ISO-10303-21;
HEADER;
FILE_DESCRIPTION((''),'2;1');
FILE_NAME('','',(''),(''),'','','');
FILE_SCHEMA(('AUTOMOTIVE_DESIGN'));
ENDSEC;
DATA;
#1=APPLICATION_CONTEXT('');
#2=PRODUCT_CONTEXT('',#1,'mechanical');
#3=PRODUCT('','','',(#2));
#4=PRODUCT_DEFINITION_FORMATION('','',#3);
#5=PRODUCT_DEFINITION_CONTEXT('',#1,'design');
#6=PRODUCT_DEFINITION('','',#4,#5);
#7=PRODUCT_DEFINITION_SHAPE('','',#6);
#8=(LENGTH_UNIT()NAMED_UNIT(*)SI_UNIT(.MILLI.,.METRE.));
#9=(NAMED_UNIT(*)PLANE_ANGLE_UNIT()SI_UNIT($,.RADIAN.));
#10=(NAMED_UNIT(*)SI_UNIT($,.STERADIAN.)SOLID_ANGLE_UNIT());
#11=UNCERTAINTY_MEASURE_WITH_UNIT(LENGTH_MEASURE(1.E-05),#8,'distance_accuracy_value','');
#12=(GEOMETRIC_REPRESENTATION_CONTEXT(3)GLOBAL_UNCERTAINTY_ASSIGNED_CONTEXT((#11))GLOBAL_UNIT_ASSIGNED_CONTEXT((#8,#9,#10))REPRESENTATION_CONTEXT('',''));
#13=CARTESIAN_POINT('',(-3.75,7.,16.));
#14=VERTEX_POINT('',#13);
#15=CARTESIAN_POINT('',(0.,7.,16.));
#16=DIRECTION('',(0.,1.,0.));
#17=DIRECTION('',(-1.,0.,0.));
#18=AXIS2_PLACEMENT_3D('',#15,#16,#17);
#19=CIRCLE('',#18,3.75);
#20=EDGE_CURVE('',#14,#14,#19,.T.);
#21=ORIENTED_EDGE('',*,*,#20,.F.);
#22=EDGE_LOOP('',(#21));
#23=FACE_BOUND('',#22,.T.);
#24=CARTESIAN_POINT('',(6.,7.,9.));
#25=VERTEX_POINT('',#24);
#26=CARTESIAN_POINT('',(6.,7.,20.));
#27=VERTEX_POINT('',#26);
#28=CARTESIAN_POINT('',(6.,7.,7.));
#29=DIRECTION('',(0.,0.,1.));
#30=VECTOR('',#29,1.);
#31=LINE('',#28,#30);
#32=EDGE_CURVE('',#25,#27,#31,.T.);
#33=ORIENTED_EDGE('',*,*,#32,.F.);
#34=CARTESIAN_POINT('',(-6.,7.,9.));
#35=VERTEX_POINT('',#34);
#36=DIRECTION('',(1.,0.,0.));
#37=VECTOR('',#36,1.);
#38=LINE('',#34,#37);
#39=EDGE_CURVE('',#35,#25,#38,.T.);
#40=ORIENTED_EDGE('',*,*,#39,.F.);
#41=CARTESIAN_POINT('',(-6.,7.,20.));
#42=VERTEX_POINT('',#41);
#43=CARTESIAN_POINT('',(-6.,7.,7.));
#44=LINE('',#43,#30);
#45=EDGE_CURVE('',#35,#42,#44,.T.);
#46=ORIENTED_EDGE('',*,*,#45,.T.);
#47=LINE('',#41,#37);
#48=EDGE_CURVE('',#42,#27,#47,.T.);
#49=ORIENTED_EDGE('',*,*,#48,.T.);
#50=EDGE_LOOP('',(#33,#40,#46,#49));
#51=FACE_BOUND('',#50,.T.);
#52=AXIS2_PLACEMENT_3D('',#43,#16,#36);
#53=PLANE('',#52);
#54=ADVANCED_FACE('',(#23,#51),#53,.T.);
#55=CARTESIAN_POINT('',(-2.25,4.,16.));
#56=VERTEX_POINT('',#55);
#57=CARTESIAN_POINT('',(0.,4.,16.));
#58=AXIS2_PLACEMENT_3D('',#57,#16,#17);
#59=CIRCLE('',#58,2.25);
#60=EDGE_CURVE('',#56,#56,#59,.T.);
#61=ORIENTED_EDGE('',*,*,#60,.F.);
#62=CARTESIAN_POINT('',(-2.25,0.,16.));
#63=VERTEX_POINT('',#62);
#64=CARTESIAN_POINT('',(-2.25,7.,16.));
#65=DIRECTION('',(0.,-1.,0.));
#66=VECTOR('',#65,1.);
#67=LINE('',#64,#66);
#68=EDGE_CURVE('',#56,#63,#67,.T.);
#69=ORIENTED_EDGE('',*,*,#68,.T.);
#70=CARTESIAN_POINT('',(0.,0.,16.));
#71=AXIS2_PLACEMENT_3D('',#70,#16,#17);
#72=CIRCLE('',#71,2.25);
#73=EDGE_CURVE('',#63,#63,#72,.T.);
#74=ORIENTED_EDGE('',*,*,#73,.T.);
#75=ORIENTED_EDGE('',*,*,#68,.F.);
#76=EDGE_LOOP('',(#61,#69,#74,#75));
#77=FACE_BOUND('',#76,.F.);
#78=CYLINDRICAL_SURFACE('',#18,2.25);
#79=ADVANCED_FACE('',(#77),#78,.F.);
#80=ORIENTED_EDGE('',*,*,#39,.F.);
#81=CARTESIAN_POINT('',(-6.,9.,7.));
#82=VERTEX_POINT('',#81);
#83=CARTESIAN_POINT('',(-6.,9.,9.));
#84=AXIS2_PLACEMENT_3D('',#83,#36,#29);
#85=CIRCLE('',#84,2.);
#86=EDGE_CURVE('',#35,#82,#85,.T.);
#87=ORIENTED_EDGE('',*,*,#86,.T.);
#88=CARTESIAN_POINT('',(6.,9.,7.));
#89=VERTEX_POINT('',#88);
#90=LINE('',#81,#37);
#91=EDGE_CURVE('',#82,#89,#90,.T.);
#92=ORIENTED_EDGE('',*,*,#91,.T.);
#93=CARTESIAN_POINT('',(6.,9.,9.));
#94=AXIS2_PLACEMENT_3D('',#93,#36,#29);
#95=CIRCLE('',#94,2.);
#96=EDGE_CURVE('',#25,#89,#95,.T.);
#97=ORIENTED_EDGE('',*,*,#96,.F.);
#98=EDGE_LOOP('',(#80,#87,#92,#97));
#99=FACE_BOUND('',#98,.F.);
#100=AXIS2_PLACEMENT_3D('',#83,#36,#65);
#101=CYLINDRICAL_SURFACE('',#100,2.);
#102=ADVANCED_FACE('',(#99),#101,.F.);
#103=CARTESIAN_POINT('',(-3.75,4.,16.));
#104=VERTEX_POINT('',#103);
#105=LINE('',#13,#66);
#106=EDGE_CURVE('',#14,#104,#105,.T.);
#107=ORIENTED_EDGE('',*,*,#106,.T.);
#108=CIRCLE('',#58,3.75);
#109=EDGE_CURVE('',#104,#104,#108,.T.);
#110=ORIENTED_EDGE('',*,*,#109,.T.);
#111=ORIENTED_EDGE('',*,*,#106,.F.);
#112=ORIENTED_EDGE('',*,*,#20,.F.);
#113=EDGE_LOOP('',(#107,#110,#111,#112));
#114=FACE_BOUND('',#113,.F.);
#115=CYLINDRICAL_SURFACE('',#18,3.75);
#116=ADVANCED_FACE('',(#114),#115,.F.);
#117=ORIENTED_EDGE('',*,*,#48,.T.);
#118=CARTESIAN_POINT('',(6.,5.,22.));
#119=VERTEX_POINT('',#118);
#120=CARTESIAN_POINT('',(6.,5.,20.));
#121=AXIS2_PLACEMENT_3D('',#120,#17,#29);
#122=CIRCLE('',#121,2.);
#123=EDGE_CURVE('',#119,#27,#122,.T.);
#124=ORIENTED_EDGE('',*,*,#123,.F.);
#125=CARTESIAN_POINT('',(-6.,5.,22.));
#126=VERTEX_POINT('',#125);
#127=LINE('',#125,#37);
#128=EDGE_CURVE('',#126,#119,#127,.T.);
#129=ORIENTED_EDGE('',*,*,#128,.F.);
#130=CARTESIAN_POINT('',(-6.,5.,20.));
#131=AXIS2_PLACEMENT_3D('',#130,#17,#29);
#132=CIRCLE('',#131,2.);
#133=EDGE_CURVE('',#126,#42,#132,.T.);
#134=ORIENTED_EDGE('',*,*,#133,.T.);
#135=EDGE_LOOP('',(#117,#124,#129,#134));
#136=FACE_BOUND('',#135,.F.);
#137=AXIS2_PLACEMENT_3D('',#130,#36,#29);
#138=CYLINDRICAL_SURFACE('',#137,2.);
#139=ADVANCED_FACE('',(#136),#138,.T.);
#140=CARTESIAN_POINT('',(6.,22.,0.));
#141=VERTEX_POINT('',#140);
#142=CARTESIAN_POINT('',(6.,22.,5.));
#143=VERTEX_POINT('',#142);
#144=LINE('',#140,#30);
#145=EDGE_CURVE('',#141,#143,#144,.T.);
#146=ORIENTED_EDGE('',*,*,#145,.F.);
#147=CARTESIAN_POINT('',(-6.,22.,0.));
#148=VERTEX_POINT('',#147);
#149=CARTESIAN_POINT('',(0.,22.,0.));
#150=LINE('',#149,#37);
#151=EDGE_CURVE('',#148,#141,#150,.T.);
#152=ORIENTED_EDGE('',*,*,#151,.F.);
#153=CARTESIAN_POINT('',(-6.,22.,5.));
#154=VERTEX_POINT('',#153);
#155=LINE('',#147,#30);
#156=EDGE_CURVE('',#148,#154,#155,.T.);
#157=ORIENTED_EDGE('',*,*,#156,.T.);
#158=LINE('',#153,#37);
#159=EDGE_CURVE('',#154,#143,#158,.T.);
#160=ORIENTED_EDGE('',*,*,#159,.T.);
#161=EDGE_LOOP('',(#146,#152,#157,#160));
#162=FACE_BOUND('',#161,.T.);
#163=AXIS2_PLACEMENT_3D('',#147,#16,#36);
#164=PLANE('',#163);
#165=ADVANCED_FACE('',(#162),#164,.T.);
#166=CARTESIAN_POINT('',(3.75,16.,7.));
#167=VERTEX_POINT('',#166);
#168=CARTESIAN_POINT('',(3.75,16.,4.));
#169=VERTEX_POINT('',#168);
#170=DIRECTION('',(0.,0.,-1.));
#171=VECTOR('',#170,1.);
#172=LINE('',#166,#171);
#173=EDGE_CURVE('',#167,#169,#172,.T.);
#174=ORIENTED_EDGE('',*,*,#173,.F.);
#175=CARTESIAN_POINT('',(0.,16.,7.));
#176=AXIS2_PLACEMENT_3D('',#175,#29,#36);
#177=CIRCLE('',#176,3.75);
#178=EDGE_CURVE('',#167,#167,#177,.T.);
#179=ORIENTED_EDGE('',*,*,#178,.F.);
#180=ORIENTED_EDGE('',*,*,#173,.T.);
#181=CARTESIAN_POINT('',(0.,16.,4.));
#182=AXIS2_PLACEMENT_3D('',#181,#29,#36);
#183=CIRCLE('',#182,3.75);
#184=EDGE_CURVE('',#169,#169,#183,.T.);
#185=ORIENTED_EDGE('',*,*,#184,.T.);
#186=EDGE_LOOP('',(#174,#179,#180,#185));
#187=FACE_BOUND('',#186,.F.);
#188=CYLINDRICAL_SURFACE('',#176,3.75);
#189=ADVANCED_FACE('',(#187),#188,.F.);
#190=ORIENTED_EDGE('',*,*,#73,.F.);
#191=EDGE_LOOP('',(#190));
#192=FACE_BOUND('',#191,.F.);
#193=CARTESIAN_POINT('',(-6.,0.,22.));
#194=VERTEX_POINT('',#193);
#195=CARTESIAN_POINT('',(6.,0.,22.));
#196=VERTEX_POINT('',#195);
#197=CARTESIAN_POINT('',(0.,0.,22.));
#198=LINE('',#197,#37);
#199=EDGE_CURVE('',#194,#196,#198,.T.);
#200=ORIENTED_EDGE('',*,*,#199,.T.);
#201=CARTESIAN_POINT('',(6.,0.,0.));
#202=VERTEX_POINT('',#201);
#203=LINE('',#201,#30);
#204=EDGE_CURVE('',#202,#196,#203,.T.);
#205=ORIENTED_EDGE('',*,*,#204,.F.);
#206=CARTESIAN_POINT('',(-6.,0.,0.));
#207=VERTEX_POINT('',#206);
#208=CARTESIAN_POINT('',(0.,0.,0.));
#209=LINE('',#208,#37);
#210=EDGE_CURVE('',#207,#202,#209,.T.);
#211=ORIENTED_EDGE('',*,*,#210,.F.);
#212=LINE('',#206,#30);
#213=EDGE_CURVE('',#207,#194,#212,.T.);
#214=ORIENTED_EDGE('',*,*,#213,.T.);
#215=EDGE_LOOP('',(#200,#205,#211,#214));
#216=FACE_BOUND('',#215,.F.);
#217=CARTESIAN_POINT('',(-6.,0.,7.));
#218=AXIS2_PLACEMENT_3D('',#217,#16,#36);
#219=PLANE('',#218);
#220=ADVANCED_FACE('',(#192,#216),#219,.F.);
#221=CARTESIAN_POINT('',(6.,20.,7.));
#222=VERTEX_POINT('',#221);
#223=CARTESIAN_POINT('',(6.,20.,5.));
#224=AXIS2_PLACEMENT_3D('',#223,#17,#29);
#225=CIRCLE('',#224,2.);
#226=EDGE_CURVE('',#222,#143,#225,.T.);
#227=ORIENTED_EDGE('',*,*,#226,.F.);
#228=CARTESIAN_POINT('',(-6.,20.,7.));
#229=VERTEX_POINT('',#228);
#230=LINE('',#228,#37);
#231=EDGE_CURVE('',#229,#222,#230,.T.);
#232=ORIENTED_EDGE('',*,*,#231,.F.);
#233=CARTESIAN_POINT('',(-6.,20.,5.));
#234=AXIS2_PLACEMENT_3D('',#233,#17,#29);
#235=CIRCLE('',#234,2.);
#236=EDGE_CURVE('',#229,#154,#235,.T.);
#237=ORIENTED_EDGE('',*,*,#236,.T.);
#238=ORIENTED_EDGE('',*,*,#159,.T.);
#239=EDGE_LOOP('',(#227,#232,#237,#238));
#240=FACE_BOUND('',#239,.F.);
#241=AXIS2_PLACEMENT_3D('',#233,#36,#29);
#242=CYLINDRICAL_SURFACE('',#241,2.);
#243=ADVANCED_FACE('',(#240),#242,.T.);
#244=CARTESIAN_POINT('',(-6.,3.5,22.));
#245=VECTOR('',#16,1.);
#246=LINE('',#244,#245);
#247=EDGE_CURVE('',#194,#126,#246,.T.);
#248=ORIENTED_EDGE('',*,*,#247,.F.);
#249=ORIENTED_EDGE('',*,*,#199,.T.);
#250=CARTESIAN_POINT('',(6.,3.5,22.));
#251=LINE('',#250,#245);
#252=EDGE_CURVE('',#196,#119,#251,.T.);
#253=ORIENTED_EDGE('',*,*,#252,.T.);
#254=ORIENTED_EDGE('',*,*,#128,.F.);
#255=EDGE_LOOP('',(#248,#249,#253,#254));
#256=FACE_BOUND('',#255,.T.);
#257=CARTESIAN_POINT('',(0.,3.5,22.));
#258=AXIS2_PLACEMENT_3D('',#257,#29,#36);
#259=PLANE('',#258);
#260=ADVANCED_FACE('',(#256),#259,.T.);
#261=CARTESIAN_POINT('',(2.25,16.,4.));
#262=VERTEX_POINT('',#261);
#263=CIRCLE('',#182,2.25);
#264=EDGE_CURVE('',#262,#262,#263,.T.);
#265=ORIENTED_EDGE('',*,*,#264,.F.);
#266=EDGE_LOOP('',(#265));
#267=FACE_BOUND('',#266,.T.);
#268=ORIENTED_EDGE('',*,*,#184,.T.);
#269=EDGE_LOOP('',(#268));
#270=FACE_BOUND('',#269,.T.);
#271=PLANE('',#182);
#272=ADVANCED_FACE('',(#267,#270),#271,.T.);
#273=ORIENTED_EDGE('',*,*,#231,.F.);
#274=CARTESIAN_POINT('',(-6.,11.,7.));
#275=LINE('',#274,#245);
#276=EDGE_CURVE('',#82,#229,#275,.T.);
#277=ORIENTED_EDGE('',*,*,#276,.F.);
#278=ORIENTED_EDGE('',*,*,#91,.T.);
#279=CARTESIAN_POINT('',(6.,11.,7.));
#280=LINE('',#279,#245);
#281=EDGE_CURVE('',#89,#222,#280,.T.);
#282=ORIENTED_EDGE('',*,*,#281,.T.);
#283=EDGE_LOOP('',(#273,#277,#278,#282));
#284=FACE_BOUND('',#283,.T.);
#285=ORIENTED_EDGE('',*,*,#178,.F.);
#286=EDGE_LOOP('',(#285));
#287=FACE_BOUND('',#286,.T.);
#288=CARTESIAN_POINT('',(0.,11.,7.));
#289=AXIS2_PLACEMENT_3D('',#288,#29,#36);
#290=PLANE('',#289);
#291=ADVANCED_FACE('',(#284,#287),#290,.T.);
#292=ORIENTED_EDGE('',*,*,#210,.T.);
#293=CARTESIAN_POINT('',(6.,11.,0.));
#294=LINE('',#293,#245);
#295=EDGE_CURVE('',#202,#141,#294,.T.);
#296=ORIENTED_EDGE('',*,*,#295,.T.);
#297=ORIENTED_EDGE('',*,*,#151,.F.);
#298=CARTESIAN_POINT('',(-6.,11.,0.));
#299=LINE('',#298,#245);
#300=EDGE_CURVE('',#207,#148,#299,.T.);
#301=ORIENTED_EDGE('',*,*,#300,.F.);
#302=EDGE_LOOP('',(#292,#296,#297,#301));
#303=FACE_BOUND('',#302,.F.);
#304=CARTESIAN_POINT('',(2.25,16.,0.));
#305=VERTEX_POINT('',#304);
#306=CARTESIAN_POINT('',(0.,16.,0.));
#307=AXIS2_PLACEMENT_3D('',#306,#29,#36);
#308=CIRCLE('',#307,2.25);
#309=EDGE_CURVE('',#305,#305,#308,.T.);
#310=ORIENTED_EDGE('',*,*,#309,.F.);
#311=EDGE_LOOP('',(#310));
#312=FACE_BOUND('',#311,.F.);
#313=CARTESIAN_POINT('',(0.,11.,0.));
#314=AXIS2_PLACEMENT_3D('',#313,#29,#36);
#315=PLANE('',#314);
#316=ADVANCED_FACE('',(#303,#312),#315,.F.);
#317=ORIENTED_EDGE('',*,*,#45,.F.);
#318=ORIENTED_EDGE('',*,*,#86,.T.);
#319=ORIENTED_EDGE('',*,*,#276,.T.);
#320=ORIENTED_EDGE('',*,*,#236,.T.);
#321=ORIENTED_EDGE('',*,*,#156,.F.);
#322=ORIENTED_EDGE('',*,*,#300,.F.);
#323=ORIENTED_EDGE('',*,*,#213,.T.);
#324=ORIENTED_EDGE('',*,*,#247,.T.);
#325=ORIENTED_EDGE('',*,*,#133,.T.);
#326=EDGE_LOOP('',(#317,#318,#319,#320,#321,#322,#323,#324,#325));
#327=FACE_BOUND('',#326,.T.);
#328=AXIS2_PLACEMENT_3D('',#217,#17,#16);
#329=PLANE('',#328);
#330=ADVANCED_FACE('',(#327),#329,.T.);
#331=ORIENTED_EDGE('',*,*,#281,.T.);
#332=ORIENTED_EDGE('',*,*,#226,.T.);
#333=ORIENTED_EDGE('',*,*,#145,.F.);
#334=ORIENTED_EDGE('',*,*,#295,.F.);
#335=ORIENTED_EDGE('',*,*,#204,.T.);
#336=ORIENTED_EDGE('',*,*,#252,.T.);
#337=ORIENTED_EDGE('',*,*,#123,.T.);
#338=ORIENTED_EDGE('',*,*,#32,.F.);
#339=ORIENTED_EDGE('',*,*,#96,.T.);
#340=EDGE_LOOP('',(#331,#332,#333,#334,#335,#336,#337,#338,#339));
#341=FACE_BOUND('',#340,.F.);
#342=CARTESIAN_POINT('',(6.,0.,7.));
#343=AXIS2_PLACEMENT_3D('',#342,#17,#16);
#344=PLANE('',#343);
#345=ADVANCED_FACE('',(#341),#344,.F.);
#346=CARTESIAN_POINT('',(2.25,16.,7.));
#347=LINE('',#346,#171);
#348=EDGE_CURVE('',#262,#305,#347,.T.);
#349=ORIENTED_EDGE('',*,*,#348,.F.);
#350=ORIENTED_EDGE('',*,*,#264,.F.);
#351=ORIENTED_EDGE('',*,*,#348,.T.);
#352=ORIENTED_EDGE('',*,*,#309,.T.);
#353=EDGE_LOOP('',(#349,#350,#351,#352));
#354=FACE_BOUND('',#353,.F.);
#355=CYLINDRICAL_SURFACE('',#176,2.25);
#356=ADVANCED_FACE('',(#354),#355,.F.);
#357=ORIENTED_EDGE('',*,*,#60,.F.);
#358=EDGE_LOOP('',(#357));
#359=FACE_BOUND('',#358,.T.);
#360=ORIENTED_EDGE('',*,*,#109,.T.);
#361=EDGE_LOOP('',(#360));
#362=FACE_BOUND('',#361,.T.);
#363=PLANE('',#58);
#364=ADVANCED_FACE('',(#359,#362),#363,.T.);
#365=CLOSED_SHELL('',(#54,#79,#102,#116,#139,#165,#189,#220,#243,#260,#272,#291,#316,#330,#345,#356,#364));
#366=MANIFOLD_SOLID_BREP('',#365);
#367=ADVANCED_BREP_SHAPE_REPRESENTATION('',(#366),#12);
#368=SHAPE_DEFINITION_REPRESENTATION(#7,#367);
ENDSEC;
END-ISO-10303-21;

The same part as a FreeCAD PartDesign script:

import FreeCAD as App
import Part
import Sketcher

V = App.Vector


def edges_at(feature, points):
    """Names of the edges that pass closest to the given points."""
    edges = feature.Shape.Edges
    near = lambda p: min(range(len(edges)), key=lambda i: edges[i].distToShape(Part.Vertex(*p))[0])
    return sorted({f"Edge{near(p) + 1}" for p in points})

doc = App.newDocument("Part")
body = doc.addObject("PartDesign::Body", "Body")

sketch1 = body.newObject("Sketcher::SketchObject", "Sketch")
sketch1.AttachmentSupport = (doc.getObject("XY_Plane"), [""])
sketch1.MapMode = "FlatFace"
sketch1.addGeometry(Part.LineSegment(V(-6, 22, 0), V(-6, 0, 0)), False)
sketch1.addGeometry(Part.LineSegment(V(-6, 0, 0), V(6, 0, 0)), False)
sketch1.addGeometry(Part.LineSegment(V(6, 0, 0), V(6, 22, 0)), False)
sketch1.addGeometry(Part.LineSegment(V(6, 22, 0), V(-6, 22, 0)), False)
sketch1.addConstraint(Sketcher.Constraint("Coincident", 0, 2, 1, 1))
sketch1.addConstraint(Sketcher.Constraint("Coincident", 1, 2, 2, 1))
sketch1.addConstraint(Sketcher.Constraint("Coincident", 2, 2, 3, 1))
sketch1.addConstraint(Sketcher.Constraint("Coincident", 3, 2, 0, 1))
sketch1.addConstraint(Sketcher.Constraint("Vertical", 0))
sketch1.addConstraint(Sketcher.Constraint("Horizontal", 1))
sketch1.addConstraint(Sketcher.Constraint("Vertical", 2))
sketch1.addConstraint(Sketcher.Constraint("Horizontal", 3))
sketch1.addConstraint(Sketcher.Constraint("Symmetric", 0, 2, 1, 2, -1, 1))
sketch1.addConstraint(Sketcher.Constraint("DistanceX", 1, 1, 1, 2, 12.0))
sketch1.addConstraint(Sketcher.Constraint("DistanceY", 0, 2, 0, 1, 22.0))
pad1 = body.newObject("PartDesign::Pad", "Pad")
pad1.Profile = sketch1
pad1.Length = 7

sketch2 = body.newObject("Sketcher::SketchObject", "Sketch001")
sketch2.AttachmentSupport = (doc.getObject("XY_Plane"), [""])
sketch2.MapMode = "FlatFace"
sketch2.AttachmentOffset = App.Placement(V(0, 0, 7), App.Rotation())
sketch2.addGeometry(Part.LineSegment(V(-6, 7, 0), V(-6, 0, 0)), False)
sketch2.addGeometry(Part.LineSegment(V(-6, 0, 0), V(6, 0, 0)), False)
sketch2.addGeometry(Part.LineSegment(V(6, 0, 0), V(6, 7, 0)), False)
sketch2.addGeometry(Part.LineSegment(V(6, 7, 0), V(-6, 7, 0)), False)
sketch2.addConstraint(Sketcher.Constraint("Coincident", 0, 2, 1, 1))
sketch2.addConstraint(Sketcher.Constraint("Coincident", 1, 2, 2, 1))
sketch2.addConstraint(Sketcher.Constraint("Coincident", 2, 2, 3, 1))
sketch2.addConstraint(Sketcher.Constraint("Coincident", 3, 2, 0, 1))
sketch2.addConstraint(Sketcher.Constraint("Vertical", 0))
sketch2.addConstraint(Sketcher.Constraint("Horizontal", 1))
sketch2.addConstraint(Sketcher.Constraint("Vertical", 2))
sketch2.addConstraint(Sketcher.Constraint("Horizontal", 3))
sketch2.addConstraint(Sketcher.Constraint("Symmetric", 0, 2, 1, 2, -1, 1))
sketch2.addConstraint(Sketcher.Constraint("DistanceX", 1, 1, 1, 2, 12.0))
sketch2.addConstraint(Sketcher.Constraint("DistanceY", 0, 2, 0, 1, 7.0))
pad2 = body.newObject("PartDesign::Pad", "Pad001")
pad2.Profile = sketch2
pad2.Length = 15

sketch3 = body.newObject("Sketcher::SketchObject", "Sketch002")
sketch3.AttachmentSupport = (doc.getObject("XY_Plane"), [""])
sketch3.MapMode = "FlatFace"
sketch3.AttachmentOffset = App.Placement(V(0, 0, 7), App.Rotation())
sketch3.addGeometry(Part.Circle(V(0, 16, 0), V(0, 0, 1), 2.25), False)
sketch3.addConstraint(Sketcher.Constraint("PointOnObject", 0, 3, -2))
sketch3.addConstraint(Sketcher.Constraint("Diameter", 0, 4.5))
sketch3.addConstraint(Sketcher.Constraint("DistanceY", -1, 1, 0, 3, 16.0))
pocket1 = body.newObject("PartDesign::Pocket", "Pocket")
pocket1.Profile = sketch3
pocket1.Length = 10

sketch4 = body.newObject("Sketcher::SketchObject", "Sketch003")
sketch4.AttachmentSupport = (doc.getObject("XY_Plane"), [""])
sketch4.MapMode = "FlatFace"
sketch4.AttachmentOffset = App.Placement(V(0, 0, 7), App.Rotation())
sketch4.addGeometry(Part.Circle(V(0, 16, 0), V(0, 0, 1), 3.75), False)
sketch4.addConstraint(Sketcher.Constraint("PointOnObject", 0, 3, -2))
sketch4.addConstraint(Sketcher.Constraint("Diameter", 0, 7.5))
sketch4.addConstraint(Sketcher.Constraint("DistanceY", -1, 1, 0, 3, 16.0))
pocket2 = body.newObject("PartDesign::Pocket", "Pocket001")
pocket2.Profile = sketch4
pocket2.Length = 3

sketch5 = body.newObject("Sketcher::SketchObject", "Sketch004")
sketch5.AttachmentSupport = (doc.getObject("XZ_Plane"), [""])
sketch5.MapMode = "FlatFace"
sketch5.AttachmentOffset = App.Placement(V(0, 0, -7), App.Rotation())
sketch5.addGeometry(Part.Circle(V(0, 16, 0), V(0, 0, 1), 2.25), False)
sketch5.addConstraint(Sketcher.Constraint("PointOnObject", 0, 3, -2))
sketch5.addConstraint(Sketcher.Constraint("Diameter", 0, 4.5))
sketch5.addConstraint(Sketcher.Constraint("DistanceY", -1, 1, 0, 3, 16.0))
pocket3 = body.newObject("PartDesign::Pocket", "Pocket002")
pocket3.Profile = sketch5
pocket3.Length = 7
pocket3.Reversed = True

sketch6 = body.newObject("Sketcher::SketchObject", "Sketch005")
sketch6.AttachmentSupport = (doc.getObject("XZ_Plane"), [""])
sketch6.MapMode = "FlatFace"
sketch6.AttachmentOffset = App.Placement(V(0, 0, -7), App.Rotation())
sketch6.addGeometry(Part.Circle(V(0, 16, 0), V(0, 0, 1), 3.75), False)
sketch6.addConstraint(Sketcher.Constraint("PointOnObject", 0, 3, -2))
sketch6.addConstraint(Sketcher.Constraint("Diameter", 0, 7.5))
sketch6.addConstraint(Sketcher.Constraint("DistanceY", -1, 1, 0, 3, 16.0))
pocket4 = body.newObject("PartDesign::Pocket", "Pocket003")
pocket4.Profile = sketch6
pocket4.Length = 3
pocket4.Reversed = True
doc.recompute()

fillet = body.newObject("PartDesign::Fillet", "Fillet")
fillet.Base = (pocket4, edges_at(pocket4, [(0, 7, 7), (0, 7, 22), (0, 22, 7)]))
fillet.Radius = 2

doc.recompute()
